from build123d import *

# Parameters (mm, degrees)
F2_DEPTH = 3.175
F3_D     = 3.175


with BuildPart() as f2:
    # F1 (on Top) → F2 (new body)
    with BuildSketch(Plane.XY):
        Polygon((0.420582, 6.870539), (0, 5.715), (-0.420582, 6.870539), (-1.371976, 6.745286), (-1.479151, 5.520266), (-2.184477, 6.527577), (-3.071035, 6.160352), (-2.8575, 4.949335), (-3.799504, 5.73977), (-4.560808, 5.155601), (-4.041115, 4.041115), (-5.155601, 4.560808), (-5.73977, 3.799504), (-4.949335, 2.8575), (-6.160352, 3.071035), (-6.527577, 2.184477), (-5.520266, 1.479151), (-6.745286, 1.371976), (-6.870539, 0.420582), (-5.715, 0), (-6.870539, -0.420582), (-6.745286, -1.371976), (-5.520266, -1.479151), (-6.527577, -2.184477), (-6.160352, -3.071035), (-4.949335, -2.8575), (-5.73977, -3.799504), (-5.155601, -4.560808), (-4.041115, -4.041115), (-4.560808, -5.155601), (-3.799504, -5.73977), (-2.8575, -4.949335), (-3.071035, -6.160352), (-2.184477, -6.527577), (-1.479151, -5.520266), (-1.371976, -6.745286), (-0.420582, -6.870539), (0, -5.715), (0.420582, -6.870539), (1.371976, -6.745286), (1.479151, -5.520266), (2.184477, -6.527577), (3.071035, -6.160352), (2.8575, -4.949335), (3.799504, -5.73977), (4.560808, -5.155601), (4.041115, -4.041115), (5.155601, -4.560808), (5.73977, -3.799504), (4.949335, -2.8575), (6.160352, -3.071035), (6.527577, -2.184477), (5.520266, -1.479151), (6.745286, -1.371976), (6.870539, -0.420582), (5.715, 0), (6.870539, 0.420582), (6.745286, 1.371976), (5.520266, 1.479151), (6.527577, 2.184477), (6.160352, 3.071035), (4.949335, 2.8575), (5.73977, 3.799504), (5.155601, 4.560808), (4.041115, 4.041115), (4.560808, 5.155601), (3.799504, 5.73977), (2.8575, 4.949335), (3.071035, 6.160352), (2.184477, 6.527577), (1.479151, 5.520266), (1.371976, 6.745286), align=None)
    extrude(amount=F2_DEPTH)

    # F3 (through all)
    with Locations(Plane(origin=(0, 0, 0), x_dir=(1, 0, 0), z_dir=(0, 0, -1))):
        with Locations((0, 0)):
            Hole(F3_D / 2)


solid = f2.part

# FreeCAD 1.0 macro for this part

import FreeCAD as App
import Part
import Sketcher

V = App.Vector
Q = App.Units.Quantity


def add_polygon(sketch, points):
    """Adds a closed chain of lines whose ends are joined by coincident constraints."""
    first, n = sketch.GeometryCount, len(points)
    for a, b in zip(points, points[1:] + points[:1]):
        sketch.addGeometry(Part.LineSegment(App.Vector(*a, 0), App.Vector(*b, 0)), False)
    for i in range(n):
        sketch.addConstraint(Sketcher.Constraint("Coincident", first + i, 2, first + (i + 1) % n, 1))

doc = App.newDocument("Part")
params = doc.addObject("Spreadsheet::Sheet", "Params")
for row, (alias, value) in enumerate([
    ("pad1_length", "0.125 in"),
    ("sketch2_diameter", "0.125 in"),
    ("hole_diameter", "0.125 in"),
], start=1):
    params.set(f"A{row}", alias)
    params.set(f"B{row}", "=" + value)
    params.setAlias(f"B{row}", alias)

body = doc.addObject("PartDesign::Body", "Body")

# Sketch on XY plane
sketch1 = body.newObject("Sketcher::SketchObject", "Sketch")
sketch1.AttachmentSupport = (doc.getObject("XY_Plane"), [""])
sketch1.MapMode = "FlatFace"
add_polygon(sketch1, [(0.4, 6.9), (0, 5.7), (-0.4, 6.9), (-1.4, 6.7), (-1.5, 5.5), (-2.2, 6.5), (-3.1, 6.2), (-2.9, 4.9), (-3.8, 5.7), (-4.6, 5.2), (-4, 4), (-5.2, 4.6), (-5.7, 3.8), (-4.9, 2.9), (-6.2, 3.1), (-6.5, 2.2), (-5.5, 1.5), (-6.7, 1.4), (-6.9, 0.4), (-5.7, 0), (-6.9, -0.4), (-6.7, -1.4), (-5.5, -1.5), (-6.5, -2.2), (-6.2, -3.1), (-4.9, -2.9), (-5.7, -3.8), (-5.2, -4.6), (-4, -4), (-4.6, -5.2), (-3.8, -5.7), (-2.9, -4.9), (-3.1, -6.2), (-2.2, -6.5), (-1.5, -5.5), (-1.4, -6.7), (-0.4, -6.9), (0, -5.7), (0.4, -6.9), (1.4, -6.7), (1.5, -5.5), (2.2, -6.5), (3.1, -6.2), (2.9, -4.9), (3.8, -5.7), (4.6, -5.2), (4, -4), (5.2, -4.6), (5.7, -3.8), (4.9, -2.9), (6.2, -3.1), (6.5, -2.2), (5.5, -1.5), (6.7, -1.4), (6.9, -0.4), (5.7, 0), (6.9, 0.4), (6.7, 1.4), (5.5, 1.5), (6.5, 2.2), (6.2, 3.1), (4.9, 2.9), (5.7, 3.8), (5.2, 4.6), (4, 4), (4.6, 5.2), (3.8, 5.7), (2.9, 4.9), (3.1, 6.2), (2.2, 6.5), (1.5, 5.5), (1.4, 6.7)])  # lines 0-71
sketch1.addConstraint([
    Sketcher.Constraint("Symmetric", 0, 2, 36, 2, -1, 1),
    Sketcher.Constraint("Symmetric", 1, 2, 37, 2, -1, 1),
    Sketcher.Constraint("Symmetric", 2, 2, 38, 2, -1, 1),
    Sketcher.Constraint("Symmetric", 3, 2, 39, 2, -1, 1),
    Sketcher.Constraint("Symmetric", 4, 2, 40, 2, -1, 1),
    Sketcher.Constraint("Symmetric", 5, 2, 41, 2, -1, 1),
    Sketcher.Constraint("Symmetric", 6, 2, 42, 2, -1, 1),
    Sketcher.Constraint("Symmetric", 7, 2, 43, 2, -1, 1),
    Sketcher.Constraint("Symmetric", 8, 2, 44, 2, -1, 1),
    Sketcher.Constraint("Symmetric", 9, 2, 45, 2, -1, 1),
    Sketcher.Constraint("Symmetric", 10, 2, 46, 2, -1, 1),
    Sketcher.Constraint("Symmetric", 11, 2, 47, 2, -1, 1),
    Sketcher.Constraint("Symmetric", 12, 2, 48, 2, -1, 1),
    Sketcher.Constraint("Symmetric", 13, 2, 49, 2, -1, 1),
    Sketcher.Constraint("Symmetric", 14, 2, 50, 2, -1, 1),
    Sketcher.Constraint("Symmetric", 15, 2, 51, 2, -1, 1),
    Sketcher.Constraint("Symmetric", 16, 2, 52, 2, -1, 1),
    Sketcher.Constraint("Symmetric", 17, 2, 53, 2, -1, 1),
    Sketcher.Constraint("Symmetric", 18, 2, 54, 2, -1, 1),
    Sketcher.Constraint("Symmetric", 19, 2, 55, 2, -1, 1),
    Sketcher.Constraint("Symmetric", 20, 2, 56, 2, -1, 1),
    Sketcher.Constraint("Symmetric", 21, 2, 57, 2, -1, 1),
    Sketcher.Constraint("Symmetric", 22, 2, 58, 2, -1, 1),
    Sketcher.Constraint("Symmetric", 23, 2, 59, 2, -1, 1),
    Sketcher.Constraint("Symmetric", 24, 2, 60, 2, -1, 1),
    Sketcher.Constraint("Symmetric", 25, 2, 61, 2, -1, 1),
    Sketcher.Constraint("Symmetric", 26, 2, 62, 2, -1, 1),
    Sketcher.Constraint("Symmetric", 27, 2, 63, 2, -1, 1),
    Sketcher.Constraint("Symmetric", 28, 2, 64, 2, -1, 1),
    Sketcher.Constraint("Symmetric", 29, 2, 65, 2, -1, 1),
    Sketcher.Constraint("Symmetric", 30, 2, 66, 2, -1, 1),
    Sketcher.Constraint("Symmetric", 31, 2, 67, 2, -1, 1),
    Sketcher.Constraint("Symmetric", 32, 2, 68, 2, -1, 1),
    Sketcher.Constraint("Symmetric", 33, 2, 69, 2, -1, 1),
    Sketcher.Constraint("Symmetric", 34, 2, 70, 2, -1, 1),
    Sketcher.Constraint("Symmetric", 35, 2, 71, 2, -1, 1),
    Sketcher.Constraint("Symmetric", 35, 2, 37, 2, -2),
    Sketcher.Constraint("Symmetric", 34, 2, 38, 2, -2),
    Sketcher.Constraint("Symmetric", 33, 2, 39, 2, -2),
    Sketcher.Constraint("Symmetric", 32, 2, 40, 2, -2),
    Sketcher.Constraint("Symmetric", 31, 2, 41, 2, -2),
    Sketcher.Constraint("Symmetric", 30, 2, 42, 2, -2),
    Sketcher.Constraint("Symmetric", 29, 2, 43, 2, -2),
    Sketcher.Constraint("Symmetric", 28, 2, 44, 2, -2),
    Sketcher.Constraint("Symmetric", 27, 2, 45, 2, -2),
    Sketcher.Constraint("Symmetric", 26, 2, 46, 2, -2),
    Sketcher.Constraint("Symmetric", 25, 2, 47, 2, -2),
    Sketcher.Constraint("Symmetric", 24, 2, 48, 2, -2),
    Sketcher.Constraint("Symmetric", 23, 2, 49, 2, -2),
    Sketcher.Constraint("Symmetric", 22, 2, 50, 2, -2),
    Sketcher.Constraint("Symmetric", 21, 2, 51, 2, -2),
    Sketcher.Constraint("Symmetric", 20, 2, 52, 2, -2),
    Sketcher.Constraint("Symmetric", 19, 2, 53, 2, -2),
    Sketcher.Constraint("PointOnObject", 0, 2, -2),
    Sketcher.Constraint("PointOnObject", 18, 2, -1),
    Sketcher.Constraint("Perpendicular", 0, 18),
    Sketcher.Constraint("Perpendicular", 2, 20),
    Sketcher.Constraint("Perpendicular", 3, 21),
    Sketcher.Constraint("Perpendicular", 4, 22),
    Sketcher.Constraint("Perpendicular", 5, 23),
    Sketcher.Constraint("Perpendicular", 6, 24),
    Sketcher.Constraint("Perpendicular", 7, 25),
    Sketcher.Constraint("Perpendicular", 8, 26),
    Sketcher.Constraint("Perpendicular", 9, 27),
    Sketcher.Constraint("Equal", 1, 3),
    Sketcher.Constraint("Equal", 3, 4),
    Sketcher.Constraint("Equal", 2, 5),
    Sketcher.Constraint("Equal", 4, 6),
    Sketcher.Constraint("Equal", 6, 7),
    Sketcher.Constraint("Equal", 5, 8),
    Sketcher.Constraint("Equal", 7, 9),
    Sketcher.Constraint("Equal", 9, 10),
    Sketcher.Constraint("Equal", 8, 11),
    Sketcher.Constraint("Equal", 10, 12),
    Sketcher.Constraint("Equal", 12, 13),
    Sketcher.Constraint("Equal", 11, 14),
    Sketcher.Constraint("Equal", 13, 15),
    Sketcher.Constraint("Equal", 15, 16),
    Sketcher.Constraint("Equal", 14, 17),
    Sketcher.Constraint("Equal", 16, 18),
    Sketcher.Constraint("Angle", 0, Q("-110.000009 deg")),
    Sketcher.Constraint("Angle", 3, Q("-94.999983 deg")),
    Sketcher.Constraint("Angle", 6, Q("-79.999999 deg")),
    Sketcher.Constraint("Angle", 7, Q("140.000007 deg")),
    Sketcher.Constraint("Angle", 9, Q("-65.000015 deg")),
    Sketcher.Constraint("Angle", 8, Q("-142.500005 deg")),
    Sketcher.Constraint("DistanceY", -1, 1, 0, 2, Q("0.225 in")),
    Sketcher.Constraint("DistanceX", 6, 2, -1, 1, Q("0.1125 in")),
    Sketcher.Constraint("Distance", 0, 1.229699),
    Sketcher.Constraint("DistanceY", -1, 1, 8, 2, 5.155601),
    Sketcher.Constraint("DistanceX", 3, 2, -1, 1, 1.479151),
])
pad1 = body.newObject("PartDesign::Pad", "Pad")
pad1.Profile = sketch1
pad1.setExpression("Length", "Params.pad1_length")

# Sketch on XY plane
sketch2 = body.newObject("Sketcher::SketchObject", "Sketch001")
sketch2.AttachmentSupport = (doc.getObject("XY_Plane"), [""])
sketch2.MapMode = "FlatFace"
sketch2.addGeometry(Part.Circle(V(0, 0, 0), V(0, 0, 1), 1.6), False)
sketch2.addConstraint([
    Sketcher.Constraint("Coincident", 0, 3, -1, 1),
    Sketcher.Constraint("Diameter", 0, Q("0.125 in")),
])
sketch2.setExpression("Constraints[1]", "Params.sketch2_diameter")
doc.recompute()
hole = body.newObject("PartDesign::Hole", "Hole")
hole.Profile = sketch2
hole.ThreadType = "None"
hole.setExpression("Diameter", "Params.hole_diameter")
hole.DepthType = "ThroughAll"
hole.Reversed = True

doc.recompute()
